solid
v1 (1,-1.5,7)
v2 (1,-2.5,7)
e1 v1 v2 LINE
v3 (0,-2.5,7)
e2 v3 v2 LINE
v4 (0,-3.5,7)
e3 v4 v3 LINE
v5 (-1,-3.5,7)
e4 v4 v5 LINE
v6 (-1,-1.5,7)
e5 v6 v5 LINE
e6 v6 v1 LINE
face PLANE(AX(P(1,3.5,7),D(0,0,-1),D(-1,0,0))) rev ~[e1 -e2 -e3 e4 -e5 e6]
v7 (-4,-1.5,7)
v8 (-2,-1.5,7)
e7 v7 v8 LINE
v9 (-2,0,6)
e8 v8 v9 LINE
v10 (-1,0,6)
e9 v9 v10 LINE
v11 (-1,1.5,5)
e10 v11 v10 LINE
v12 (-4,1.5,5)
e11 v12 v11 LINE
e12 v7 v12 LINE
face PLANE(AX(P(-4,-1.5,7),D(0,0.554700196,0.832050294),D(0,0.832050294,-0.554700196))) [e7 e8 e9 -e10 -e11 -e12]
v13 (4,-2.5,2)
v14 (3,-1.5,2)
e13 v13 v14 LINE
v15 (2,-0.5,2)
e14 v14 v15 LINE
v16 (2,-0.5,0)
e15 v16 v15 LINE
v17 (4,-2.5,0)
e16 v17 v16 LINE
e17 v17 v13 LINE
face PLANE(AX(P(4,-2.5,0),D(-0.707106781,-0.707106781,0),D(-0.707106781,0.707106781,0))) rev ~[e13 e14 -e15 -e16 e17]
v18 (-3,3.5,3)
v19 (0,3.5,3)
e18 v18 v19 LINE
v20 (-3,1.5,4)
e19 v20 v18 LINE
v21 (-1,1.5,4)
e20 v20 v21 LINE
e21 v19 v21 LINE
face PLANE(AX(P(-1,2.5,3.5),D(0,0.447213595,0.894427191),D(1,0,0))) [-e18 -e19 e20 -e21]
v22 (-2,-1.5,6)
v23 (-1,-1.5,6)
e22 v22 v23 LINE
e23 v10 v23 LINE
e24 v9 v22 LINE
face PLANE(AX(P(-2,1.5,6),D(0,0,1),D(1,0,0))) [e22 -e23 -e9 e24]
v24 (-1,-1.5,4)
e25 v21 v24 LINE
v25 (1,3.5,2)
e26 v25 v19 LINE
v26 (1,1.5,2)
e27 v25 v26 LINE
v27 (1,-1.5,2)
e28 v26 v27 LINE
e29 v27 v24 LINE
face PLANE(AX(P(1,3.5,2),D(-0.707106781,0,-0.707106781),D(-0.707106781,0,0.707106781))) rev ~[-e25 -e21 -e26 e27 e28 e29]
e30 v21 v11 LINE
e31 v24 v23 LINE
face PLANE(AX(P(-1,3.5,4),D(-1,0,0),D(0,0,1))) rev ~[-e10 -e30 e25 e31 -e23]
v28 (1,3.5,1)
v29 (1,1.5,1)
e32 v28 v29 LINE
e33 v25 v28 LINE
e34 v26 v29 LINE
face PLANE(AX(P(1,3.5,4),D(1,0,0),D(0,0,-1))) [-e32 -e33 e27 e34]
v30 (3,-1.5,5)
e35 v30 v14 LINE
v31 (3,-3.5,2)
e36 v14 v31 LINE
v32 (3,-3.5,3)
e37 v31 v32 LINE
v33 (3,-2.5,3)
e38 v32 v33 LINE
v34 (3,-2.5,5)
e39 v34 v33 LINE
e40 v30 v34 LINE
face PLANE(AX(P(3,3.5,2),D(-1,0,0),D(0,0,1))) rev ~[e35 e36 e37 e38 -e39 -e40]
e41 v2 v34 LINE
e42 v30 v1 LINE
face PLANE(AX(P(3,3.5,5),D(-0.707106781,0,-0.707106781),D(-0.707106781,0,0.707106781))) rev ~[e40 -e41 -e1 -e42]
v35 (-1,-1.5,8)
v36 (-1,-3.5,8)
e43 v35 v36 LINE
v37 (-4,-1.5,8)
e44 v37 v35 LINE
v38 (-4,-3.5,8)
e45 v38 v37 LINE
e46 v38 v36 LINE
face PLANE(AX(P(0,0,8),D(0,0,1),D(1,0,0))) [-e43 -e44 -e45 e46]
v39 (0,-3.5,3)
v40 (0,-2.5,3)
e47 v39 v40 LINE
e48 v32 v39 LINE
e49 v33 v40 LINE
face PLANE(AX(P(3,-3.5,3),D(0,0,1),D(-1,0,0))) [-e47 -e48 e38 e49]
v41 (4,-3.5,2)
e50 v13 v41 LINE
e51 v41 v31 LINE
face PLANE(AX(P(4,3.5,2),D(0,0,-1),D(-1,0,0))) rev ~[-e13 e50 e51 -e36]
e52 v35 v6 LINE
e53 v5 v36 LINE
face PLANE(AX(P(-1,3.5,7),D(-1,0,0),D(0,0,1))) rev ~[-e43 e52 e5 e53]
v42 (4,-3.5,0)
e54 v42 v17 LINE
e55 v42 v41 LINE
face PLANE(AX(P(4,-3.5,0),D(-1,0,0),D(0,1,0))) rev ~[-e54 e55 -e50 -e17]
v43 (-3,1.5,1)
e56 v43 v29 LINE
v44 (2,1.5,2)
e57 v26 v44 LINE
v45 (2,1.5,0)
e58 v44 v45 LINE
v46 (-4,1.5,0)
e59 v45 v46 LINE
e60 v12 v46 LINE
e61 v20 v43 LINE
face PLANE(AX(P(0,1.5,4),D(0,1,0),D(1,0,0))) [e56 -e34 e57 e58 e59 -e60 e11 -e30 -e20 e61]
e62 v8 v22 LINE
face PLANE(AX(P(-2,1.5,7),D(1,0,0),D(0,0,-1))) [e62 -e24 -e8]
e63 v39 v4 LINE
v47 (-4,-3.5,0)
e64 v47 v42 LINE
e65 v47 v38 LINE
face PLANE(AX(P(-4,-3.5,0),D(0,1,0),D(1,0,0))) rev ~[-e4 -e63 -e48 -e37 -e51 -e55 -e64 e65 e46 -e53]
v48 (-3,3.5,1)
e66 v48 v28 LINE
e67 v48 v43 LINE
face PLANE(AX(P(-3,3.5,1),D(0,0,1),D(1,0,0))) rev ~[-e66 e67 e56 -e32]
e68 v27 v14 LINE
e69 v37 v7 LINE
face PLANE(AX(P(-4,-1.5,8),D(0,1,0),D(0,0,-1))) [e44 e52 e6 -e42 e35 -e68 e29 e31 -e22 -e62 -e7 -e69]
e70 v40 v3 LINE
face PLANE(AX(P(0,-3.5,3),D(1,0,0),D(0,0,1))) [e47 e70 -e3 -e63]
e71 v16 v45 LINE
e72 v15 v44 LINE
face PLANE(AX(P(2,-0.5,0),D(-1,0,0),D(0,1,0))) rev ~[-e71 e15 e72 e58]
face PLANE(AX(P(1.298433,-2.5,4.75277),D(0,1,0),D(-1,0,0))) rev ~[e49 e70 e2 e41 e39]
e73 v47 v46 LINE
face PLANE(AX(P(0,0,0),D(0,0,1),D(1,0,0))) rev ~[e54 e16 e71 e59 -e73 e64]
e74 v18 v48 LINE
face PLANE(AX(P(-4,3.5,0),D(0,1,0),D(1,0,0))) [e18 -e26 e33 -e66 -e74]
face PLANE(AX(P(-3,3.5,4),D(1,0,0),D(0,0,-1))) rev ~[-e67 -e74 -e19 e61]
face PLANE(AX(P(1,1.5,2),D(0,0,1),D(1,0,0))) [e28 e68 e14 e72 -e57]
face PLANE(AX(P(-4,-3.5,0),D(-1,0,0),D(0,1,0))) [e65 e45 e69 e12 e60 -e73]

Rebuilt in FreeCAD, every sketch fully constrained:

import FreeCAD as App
import Part
import Sketcher

V = App.Vector

doc = App.newDocument("Part")
body = doc.addObject("PartDesign::Body", "Body")

# Sketch on XY plane
sketch1 = doc.addObject("Sketcher::SketchObject", "Sketch")
body.addObject(sketch1)
sketch1.AttachmentSupport = (doc.XY_Plane, [""])
sketch1.MapMode = "FlatFace"
sketch1.addGeometry([
    Part.LineSegment(V(-4, 4, 0), V(-4, -4, 0)),
    Part.LineSegment(V(-4, -4, 0), V(4, -4, 0)),
    Part.LineSegment(V(4, -4, 0), V(4, 4, 0)),
    Part.LineSegment(V(4, 4, 0), V(-4, 4, 0)),
], False)
sketch1.addConstraint([
    Sketcher.Constraint("Coincident", 0, 2, 1, 1),
    Sketcher.Constraint("Coincident", 1, 2, 2, 1),
    Sketcher.Constraint("Coincident", 2, 2, 3, 1),
    Sketcher.Constraint("Coincident", 3, 2, 0, 1),
    Sketcher.Constraint("Vertical", 0),
    Sketcher.Constraint("Horizontal", 1),
    Sketcher.Constraint("Vertical", 2),
    Sketcher.Constraint("Horizontal", 3),
    Sketcher.Constraint("Symmetric", 0, 2, 2, 2, -1, 1),
    Sketcher.Constraint("DistanceX", 1, 1, 1, 2, 8.0),
    Sketcher.Constraint("DistanceY", 0, 2, 0, 1, 7.0),
])
pad1 = doc.addObject("PartDesign::Pad", "Pad")
body.addObject(pad1)
pad1.Profile = sketch1
pad1.Length = 8

# Sketch on XZ plane
sketch2 = doc.addObject("Sketcher::SketchObject", "Sketch001")
body.addObject(sketch2)
sketch2.AttachmentSupport = (doc.XZ_Plane, [""])
sketch2.MapMode = "FlatFace"
sketch2.AttachmentOffset = App.Placement(V(0, 0, -3.5), App.Rotation())
sketch2.addGeometry([
    Part.LineSegment(V(4, 8, 0), V(4, 2, 0)),  # 0
    Part.LineSegment(V(4, 2, 0), V(3, 2, 0)),  # 1
    Part.LineSegment(V(3, 2, 0), V(3, 5, 0)),  # 2
    Part.LineSegment(V(3, 5, 0), V(1, 7, 0)),  # 3
    Part.LineSegment(V(1, 7, 0), V(-1, 7, 0)),  # 4
    Part.LineSegment(V(-1, 7, 0), V(-1, 8, 0)),  # 5
    Part.LineSegment(V(-1, 8, 0), V(4, 8, 0)),  # 6
], False)
sketch2.addConstraint([
    Sketcher.Constraint("Coincident", 0, 2, 1, 1),
    Sketcher.Constraint("Coincident", 1, 2, 2, 1),
    Sketcher.Constraint("Coincident", 2, 2, 3, 1),
    Sketcher.Constraint("Coincident", 3, 2, 4, 1),
    Sketcher.Constraint("Coincident", 4, 2, 5, 1),
    Sketcher.Constraint("Coincident", 5, 2, 6, 1),
    Sketcher.Constraint("Coincident", 6, 2, 0, 1),
    Sketcher.Constraint("Vertical", 0),
    Sketcher.Constraint("Horizontal", 1),
    Sketcher.Constraint("Vertical", 2),
    Sketcher.Constraint("Horizontal", 4),
    Sketcher.Constraint("Vertical", 5),
    Sketcher.Constraint("Horizontal", 6),
    Sketcher.Constraint("Equal", 1, 5),
    Sketcher.Constraint("DistanceX", 1, 2, 1, 1, 1.0),
    Sketcher.Constraint("DistanceX", 4, 2, 4, 1, 2.0),
    Sketcher.Constraint("DistanceX", 6, 1, 6, 2, 5.0),
    Sketcher.Constraint("DistanceY", 0, 2, 0, 1, 6.0),
    Sketcher.Constraint("DistanceY", 2, 1, 2, 2, 3.0),
    Sketcher.Constraint("DistanceX", -1, 1, 0, 2, 4.0),
    Sketcher.Constraint("DistanceY", -1, 1, 0, 2, 2.0),
])
pocket1 = doc.addObject("PartDesign::Pocket", "Pocket")
body.addObject(pocket1)
pocket1.Profile = sketch2
pocket1.Type = "ThroughAll"
pocket1.Reversed = True

# Sketch on XZ plane
sketch3 = doc.addObject("Sketcher::SketchObject", "Sketch002")
body.addObject(sketch3)
sketch3.AttachmentSupport = (doc.XZ_Plane, [""])
sketch3.MapMode = "FlatFace"
sketch3.AttachmentOffset = App.Placement(V(0, 0, 3.5), App.Rotation())
sketch3.addGeometry([
    Part.LineSegment(V(3, 5, 0), V(1, 7, 0)),  # 0
    Part.LineSegment(V(1, 7, 0), V(0, 7, 0)),  # 1
    Part.LineSegment(V(0, 7, 0), V(0, 3, 0)),  # 2
    Part.LineSegment(V(0, 3, 0), V(3, 3, 0)),  # 3
    Part.LineSegment(V(3, 3, 0), V(3, 5, 0)),  # 4
], False)
sketch3.addConstraint([
    Sketcher.Constraint("Coincident", 0, 2, 1, 1),
    Sketcher.Constraint("Coincident", 1, 2, 2, 1),
    Sketcher.Constraint("Coincident", 2, 2, 3, 1),
    Sketcher.Constraint("Coincident", 3, 2, 4, 1),
    Sketcher.Constraint("Coincident", 4, 2, 0, 1),
    Sketcher.Constraint("Horizontal", 1),
    Sketcher.Constraint("Vertical", 2),
    Sketcher.Constraint("Horizontal", 3),
    Sketcher.Constraint("Vertical", 4),
    Sketcher.Constraint("PointOnObject", 1, 2, -2),
    Sketcher.Constraint("DistanceX", 1, 2, 1, 1, 1.0),
    Sketcher.Constraint("DistanceX", 3, 1, 3, 2, 3.0),
    Sketcher.Constraint("DistanceY", 2, 2, 2, 1, 4.0),
    Sketcher.Constraint("DistanceY", 4, 1, 4, 2, 2.0),
    Sketcher.Constraint("DistanceY", -1, 1, 0, 2, 7.0),
])
pocket2 = doc.addObject("PartDesign::Pocket", "Pocket001")
body.addObject(pocket2)
pocket2.Profile = sketch3
pocket2.Length = 1

# Sketch on XY plane
sketch4 = doc.addObject("Sketcher::SketchObject", "Sketch003")
body.addObject(sketch4)
sketch4.AttachmentSupport = (doc.XY_Plane, [""])
sketch4.MapMode = "FlatFace"
sketch4.addGeometry([
    Part.LineSegment(V(2, -0.5, 0), V(2, 3.5, 0)),
    Part.LineSegment(V(2, 3.5, 0), V(4, 3.5, 0)),
    Part.LineSegment(V(4, 3.5, 0), V(4, -2.5, 0)),
    Part.LineSegment(V(4, -2.5, 0), V(2, -0.5, 0)),
], False)
sketch4.addConstraint([
    Sketcher.Constraint("Coincident", 0, 2, 1, 1),
    Sketcher.Constraint("Coincident", 1, 2, 2, 1),
    Sketcher.Constraint("Coincident", 2, 2, 3, 1),
    Sketcher.Constraint("Coincident", 3, 2, 0, 1),
    Sketcher.Constraint("Vertical", 0),
    Sketcher.Constraint("Horizontal", 1),
    Sketcher.Constraint("Vertical", 2),
    Sketcher.Constraint("DistanceX", 1, 1, 1, 2, 2.0),
    Sketcher.Constraint("DistanceY", 0, 1, 0, 2, 4.0),
    Sketcher.Constraint("DistanceY", 2, 2, 2, 1, 6.0),
    Sketcher.Constraint("DistanceX", -1, 1, 0, 2, 2.0),
    Sketcher.Constraint("DistanceY", -1, 1, 0, 2, 3.5),
])
pocket3 = doc.addObject("PartDesign::Pocket", "Pocket002")
body.addObject(pocket3)
pocket3.Profile = sketch4
pocket3.Length = 2
pocket3.Reversed = True

# Sketch on YZ plane
sketch5 = doc.addObject("Sketcher::SketchObject", "Sketch004")
body.addObject(sketch5)
sketch5.AttachmentSupport = (doc.YZ_Plane, [""])
sketch5.MapMode = "FlatFace"
sketch5.AttachmentOffset = App.Placement(V(0, 0, -4), App.Rotation())
sketch5.addGeometry([
    Part.LineSegment(V(-1.5, 7, 0), V(-1.5, 8, 0)),  # 0
    Part.LineSegment(V(-1.5, 8, 0), V(3.5, 8, 0)),  # 1
    Part.LineSegment(V(3.5, 8, 0), V(3.5, 5, 0)),  # 2
    Part.LineSegment(V(3.5, 5, 0), V(1.5, 5, 0)),  # 3
    Part.LineSegment(V(1.5, 5, 0), V(-1.5, 7, 0)),  # 4
], False)
sketch5.addConstraint([
    Sketcher.Constraint("Coincident", 0, 2, 1, 1),
    Sketcher.Constraint("Coincident", 1, 2, 2, 1),
    Sketcher.Constraint("Coincident", 2, 2, 3, 1),
    Sketcher.Constraint("Coincident", 3, 2, 4, 1),
    Sketcher.Constraint("Coincident", 4, 2, 0, 1),
    Sketcher.Constraint("Vertical", 0),
    Sketcher.Constraint("Horizontal", 1),
    Sketcher.Constraint("Vertical", 2),
    Sketcher.Constraint("Horizontal", 3),
    Sketcher.Constraint("DistanceX", 1, 1, 1, 2, 5.0),
    Sketcher.Constraint("DistanceX", 3, 2, 3, 1, 2.0),
    Sketcher.Constraint("DistanceY", 0, 1, 0, 2, 1.0),
    Sketcher.Constraint("DistanceY", 2, 2, 2, 1, 3.0),
    Sketcher.Constraint("DistanceY", -1, 1, 0, 2, 8.0),
    Sketcher.Constraint("DistanceX", 0, 2, -1, 1, 1.5),
])
pocket4 = doc.addObject("PartDesign::Pocket", "Pocket003")
body.addObject(pocket4)
pocket4.Profile = sketch5
pocket4.Type = "ThroughAll"
pocket4.Reversed = True

# Sketch on XZ plane
sketch6 = doc.addObject("Sketcher::SketchObject", "Sketch005")
body.addObject(sketch6)
sketch6.AttachmentSupport = (doc.XZ_Plane, [""])
sketch6.MapMode = "FlatFace"
sketch6.AttachmentOffset = App.Placement(V(0, 0, -3.5), App.Rotation())
sketch6.addGeometry([
    Part.LineSegment(V(-6.3, -2.3, 0), V(-6.3, 10.3, 0)),  # 0
    Part.LineSegment(V(-6.3, 10.3, 0), V(6.3, 10.3, 0)),  # 1
    Part.LineSegment(V(6.3, 10.3, 0), V(6.3, -2.3, 0)),  # 2
    Part.LineSegment(V(6.3, -2.3, 0), V(-6.3, -2.3, 0)),  # 3
    Part.LineSegment(V(1, 4, 0), V(-3, 4, 0)),  # 4
    Part.LineSegment(V(-3, 4, 0), V(-3, 1, 0)),  # 5
    Part.LineSegment(V(-3, 1, 0), V(1, 1, 0)),  # 6
    Part.LineSegment(V(1, 1, 0), V(1, 4, 0)),  # 7
], False)
sketch6.addConstraint([
    Sketcher.Constraint("Coincident", 0, 2, 1, 1),
    Sketcher.Constraint("Coincident", 1, 2, 2, 1),
    Sketcher.Constraint("Coincident", 2, 2, 3, 1),
    Sketcher.Constraint("Coincident", 3, 2, 0, 1),
    Sketcher.Constraint("Coincident", 4, 2, 5, 1),
    Sketcher.Constraint("Coincident", 5, 2, 6, 1),
    Sketcher.Constraint("Coincident", 6, 2, 7, 1),
    Sketcher.Constraint("Coincident", 7, 2, 4, 1),
    Sketcher.Constraint("Vertical", 0),
    Sketcher.Constraint("Horizontal", 1),
    Sketcher.Constraint("Vertical", 2),
    Sketcher.Constraint("Horizontal", 3),
    Sketcher.Constraint("Horizontal", 4),
    Sketcher.Constraint("Vertical", 5),
    Sketcher.Constraint("Horizontal", 6),
    Sketcher.Constraint("Vertical", 7),
    Sketcher.Constraint("Equal", 3, 0),
    Sketcher.Constraint("DistanceX", 4, 2, 4, 1, 4.0),
    Sketcher.Constraint("DistanceY", 5, 2, 5, 1, 3.0),
    Sketcher.Constraint("DistanceX", 4, 2, -1, 1, 3.0),
    Sketcher.Constraint("DistanceY", -1, 1, 4, 2, 4.0),
    Sketcher.Constraint("DistanceX", 1, 1, 1, 2, 12.66),
    Sketcher.Constraint("DistanceX", 0, 2, -1, 1, 6.33),
    Sketcher.Constraint("DistanceY", -1, 1, 0, 2, 10.33),
])
pocket5 = doc.addObject("PartDesign::Pocket", "Pocket004")
body.addObject(pocket5)
pocket5.Profile = sketch6
pocket5.Length = 2
pocket5.Reversed = True

# Sketch on XZ plane
sketch7 = doc.addObject("Sketcher::SketchObject", "Sketch006")
body.addObject(sketch7)
sketch7.AttachmentSupport = (doc.XZ_Plane, [""])
sketch7.MapMode = "FlatFace"
sketch7.AttachmentOffset = App.Placement(V(0, 0, -1.5), App.Rotation())
sketch7.addGeometry([
    Part.LineSegment(V(-2, 6, 0), V(-2, 7, 0)),
    Part.LineSegment(V(-2, 7, 0), V(-1, 7, 0)),
    Part.LineSegment(V(-1, 7, 0), V(-1, 6, 0)),
    Part.LineSegment(V(-1, 6, 0), V(-2, 6, 0)),
], False)
sketch7.addConstraint([
    Sketcher.Constraint("Coincident", 0, 2, 1, 1),
    Sketcher.Constraint("Coincident", 1, 2, 2, 1),
    Sketcher.Constraint("Coincident", 2, 2, 3, 1),
    Sketcher.Constraint("Coincident", 3, 2, 0, 1),
    Sketcher.Constraint("Vertical", 0),
    Sketcher.Constraint("Horizontal", 1),
    Sketcher.Constraint("Vertical", 2),
    Sketcher.Constraint("Horizontal", 3),
    Sketcher.Constraint("Equal", 3, 0),
    Sketcher.Constraint("DistanceX", 1, 1, 1, 2, 1.0),
    Sketcher.Constraint("DistanceX", 0, 2, -1, 1, 2.0),
    Sketcher.Constraint("DistanceY", -1, 1, 0, 2, 7.0),
])
pocket6 = doc.addObject("PartDesign::Pocket", "Pocket005")
body.addObject(pocket6)
pocket6.Profile = sketch7
pocket6.Length = 3
pocket6.Reversed = True

# Sketch on XZ plane
sketch8 = doc.addObject("Sketcher::SketchObject", "Sketch007")
body.addObject(sketch8)
sketch8.AttachmentSupport = (doc.XZ_Plane, [""])
sketch8.MapMode = "FlatFace"
sketch8.AttachmentOffset = App.Placement(V(0, 0, -3.5), App.Rotation())
sketch8.addGeometry([
    Part.LineSegment(V(-1, 4, 0), V(-1, 7, 0)),
    Part.LineSegment(V(-1, 7, 0), V(3, 7, 0)),
    Part.LineSegment(V(3, 7, 0), V(3, 4, 0)),
    Part.LineSegment(V(3, 4, 0), V(-1, 4, 0)),
], False)
sketch8.addConstraint([
    Sketcher.Constraint("Coincident", 0, 2, 1, 1),
    Sketcher.Constraint("Coincident", 1, 2, 2, 1),
    Sketcher.Constraint("Coincident", 2, 2, 3, 1),
    Sketcher.Constraint("Coincident", 3, 2, 0, 1),
    Sketcher.Constraint("Vertical", 0),
    Sketcher.Constraint("Horizontal", 1),
    Sketcher.Constraint("Vertical", 2),
    Sketcher.Constraint("Horizontal", 3),
    Sketcher.Constraint("DistanceX", 1, 1, 1, 2, 4.0),
    Sketcher.Constraint("DistanceY", 0, 1, 0, 2, 3.0),
    Sketcher.Constraint("DistanceX", 0, 2, -1, 1, 1.0),
    Sketcher.Constraint("DistanceY", -1, 1, 0, 2, 7.0),
])
pocket7 = doc.addObject("PartDesign::Pocket", "Pocket006")
body.addObject(pocket7)
pocket7.Profile = sketch8
pocket7.Length = 5
pocket7.Reversed = True

# Sketch on an angled plane
sketch9 = doc.addObject("Sketcher::SketchObject", "Sketch008")
body.addObject(sketch9)
sketch9.Placement = App.Placement(V(0, 1.9, 3.8), App.Rotation(V(1, 0, 0), V(0, 0.894427191, -0.447213595), V(0, 0.447213595, 0.894427191), "ZXY"))
sketch9.addGeometry([
    Part.LineSegment(V(-3, 1.8, 0), V(-3, -0.4, 0)),
    Part.LineSegment(V(-3, -0.4, 0), V(1, -0.4, 0)),
    Part.LineSegment(V(1, -0.4, 0), V(1, 1.8, 0)),
    Part.LineSegment(V(1, 1.8, 0), V(-3, 1.8, 0)),
], False)
sketch9.addConstraint([
    Sketcher.Constraint("Coincident", 0, 2, 1, 1),
    Sketcher.Constraint("Coincident", 1, 2, 2, 1),
    Sketcher.Constraint("Coincident", 2, 2, 3, 1),
    Sketcher.Constraint("Coincident", 3, 2, 0, 1),
    Sketcher.Constraint("Vertical", 0),
    Sketcher.Constraint("Horizontal", 1),
    Sketcher.Constraint("Vertical", 2),
    Sketcher.Constraint("Horizontal", 3),
    Sketcher.Constraint("DistanceX", 1, 1, 1, 2, 4.0),
    Sketcher.Constraint("DistanceX", 0, 2, -1, 1, 3.0),
    Sketcher.Constraint("DistanceY", 0, 2, 0, 1, 2.236068),
    Sketcher.Constraint("DistanceY", 0, 2, -1, 1, 0.447214),
])
pocket8 = doc.addObject("PartDesign::Pocket", "Pocket007")
body.addObject(pocket8)
pocket8.Profile = sketch9
pocket8.Length = 5
pocket8.Reversed = True

# Sketch on XZ plane
sketch10 = doc.addObject("Sketcher::SketchObject", "Sketch009")
body.addObject(sketch10)
sketch10.AttachmentSupport = (doc.XZ_Plane, [""])
sketch10.MapMode = "FlatFace"
sketch10.AttachmentOffset = App.Placement(V(0, 0, -3.5), App.Rotation())
sketch10.addGeometry([
    Part.LineSegment(V(1, 2, 0), V(-1, 4, 0)),
    Part.LineSegment(V(-1, 4, 0), V(1, 4, 0)),
    Part.LineSegment(V(1, 4, 0), V(1, 2, 0)),
], False)
sketch10.addConstraint([
    Sketcher.Constraint("Coincident", 0, 2, 1, 1),
    Sketcher.Constraint("Coincident", 1, 2, 2, 1),
    Sketcher.Constraint("Coincident", 2, 2, 0, 1),
    Sketcher.Constraint("Horizontal", 1),
    Sketcher.Constraint("Vertical", 2),
    Sketcher.Constraint("Equal", 1, 2),
    Sketcher.Constraint("DistanceX", 1, 1, 1, 2, 2.0),
    Sketcher.Constraint("DistanceX", 0, 2, -1, 1, 1.0),
    Sketcher.Constraint("DistanceY", -1, 1, 0, 2, 4.0),
])
pocket9 = doc.addObject("PartDesign::Pocket", "Pocket008")
body.addObject(pocket9)
pocket9.Profile = sketch10
pocket9.Length = 5
pocket9.Reversed = True

# Sketch on XZ plane
sketch11 = doc.addObject("Sketcher::SketchObject", "Sketch010")
body.addObject(sketch11)
sketch11.AttachmentSupport = (doc.XZ_Plane, [""])
sketch11.MapMode = "FlatFace"
sketch11.AttachmentOffset = App.Placement(V(0, 0, -1.5), App.Rotation())
sketch11.addGeometry([
    Part.LineSegment(V(1, 2, 0), V(1, 4, 0)),
    Part.LineSegment(V(1, 4, 0), V(3, 4, 0)),
    Part.LineSegment(V(3, 4, 0), V(3, 2, 0)),
    Part.LineSegment(V(3, 2, 0), V(1, 2, 0)),
], False)
sketch11.addConstraint([
    Sketcher.Constraint("Coincident", 0, 2, 1, 1),
    Sketcher.Constraint("Coincident", 1, 2, 2, 1),
    Sketcher.Constraint("Coincident", 2, 2, 3, 1),
    Sketcher.Constraint("Coincident", 3, 2, 0, 1),
    Sketcher.Constraint("Vertical", 0),
    Sketcher.Constraint("Horizontal", 1),
    Sketcher.Constraint("Vertical", 2),
    Sketcher.Constraint("Horizontal", 3),
    Sketcher.Constraint("Equal", 3, 0),
    Sketcher.Constraint("DistanceX", 1, 1, 1, 2, 2.0),
    Sketcher.Constraint("DistanceX", -1, 1, 0, 2, 1.0),
    Sketcher.Constraint("DistanceY", -1, 1, 0, 2, 4.0),
])
pocket10 = doc.addObject("PartDesign::Pocket", "Pocket009")
body.addObject(pocket10)
pocket10.Profile = sketch11
pocket10.Length = 3
pocket10.Reversed = True

doc.recompute()
